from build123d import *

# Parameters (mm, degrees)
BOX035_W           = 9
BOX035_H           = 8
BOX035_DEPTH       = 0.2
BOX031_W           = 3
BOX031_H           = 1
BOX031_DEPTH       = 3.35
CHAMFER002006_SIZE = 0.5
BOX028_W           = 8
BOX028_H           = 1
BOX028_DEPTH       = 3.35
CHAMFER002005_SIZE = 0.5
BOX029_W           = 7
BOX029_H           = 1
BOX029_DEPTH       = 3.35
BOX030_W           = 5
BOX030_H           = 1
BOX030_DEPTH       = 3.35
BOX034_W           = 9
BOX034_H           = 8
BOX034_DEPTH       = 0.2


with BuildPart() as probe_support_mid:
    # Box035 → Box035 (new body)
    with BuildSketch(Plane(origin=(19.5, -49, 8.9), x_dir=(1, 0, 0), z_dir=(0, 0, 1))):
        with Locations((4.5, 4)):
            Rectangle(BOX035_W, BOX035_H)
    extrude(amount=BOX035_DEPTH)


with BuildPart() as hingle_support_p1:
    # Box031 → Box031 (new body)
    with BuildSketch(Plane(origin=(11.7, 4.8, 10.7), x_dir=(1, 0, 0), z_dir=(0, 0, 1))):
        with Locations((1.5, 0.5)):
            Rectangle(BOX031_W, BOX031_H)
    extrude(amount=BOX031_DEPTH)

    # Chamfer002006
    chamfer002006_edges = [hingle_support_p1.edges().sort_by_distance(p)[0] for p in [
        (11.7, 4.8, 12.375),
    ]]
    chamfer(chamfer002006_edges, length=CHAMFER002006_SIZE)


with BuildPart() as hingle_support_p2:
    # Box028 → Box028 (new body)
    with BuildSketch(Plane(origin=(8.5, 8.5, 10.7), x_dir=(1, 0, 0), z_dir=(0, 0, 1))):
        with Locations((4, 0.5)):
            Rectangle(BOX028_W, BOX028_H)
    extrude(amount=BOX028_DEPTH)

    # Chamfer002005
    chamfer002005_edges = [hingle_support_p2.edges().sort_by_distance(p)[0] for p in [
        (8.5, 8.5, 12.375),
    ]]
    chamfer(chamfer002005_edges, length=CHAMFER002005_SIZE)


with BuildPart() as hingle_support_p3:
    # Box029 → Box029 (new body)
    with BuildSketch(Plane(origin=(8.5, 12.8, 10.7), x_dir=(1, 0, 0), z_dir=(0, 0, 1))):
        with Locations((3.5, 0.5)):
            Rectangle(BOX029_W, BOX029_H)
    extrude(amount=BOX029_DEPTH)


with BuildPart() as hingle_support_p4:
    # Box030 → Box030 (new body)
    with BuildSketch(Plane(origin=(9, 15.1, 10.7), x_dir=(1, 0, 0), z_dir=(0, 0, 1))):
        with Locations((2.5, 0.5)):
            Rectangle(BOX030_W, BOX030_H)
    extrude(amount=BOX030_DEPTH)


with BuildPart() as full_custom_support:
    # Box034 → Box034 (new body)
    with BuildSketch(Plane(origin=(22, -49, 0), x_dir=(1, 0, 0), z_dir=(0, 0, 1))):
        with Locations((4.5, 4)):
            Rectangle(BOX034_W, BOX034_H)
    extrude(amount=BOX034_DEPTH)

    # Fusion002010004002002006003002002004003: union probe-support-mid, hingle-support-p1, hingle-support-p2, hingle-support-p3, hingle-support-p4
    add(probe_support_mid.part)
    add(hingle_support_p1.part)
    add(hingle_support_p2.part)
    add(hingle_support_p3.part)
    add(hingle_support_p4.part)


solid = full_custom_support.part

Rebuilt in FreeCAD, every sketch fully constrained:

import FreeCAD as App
import Part
import Sketcher

V = App.Vector
Q = App.Units.Quantity


def edges_at(feature, points):
    """Names of the edges that pass closest to the given points."""
    edges = feature.Shape.Edges
    near = lambda p: min(range(len(edges)), key=lambda i: edges[i].distToShape(Part.Vertex(*p))[0])
    return sorted({f"Edge{near(p) + 1}" for p in points})

doc = App.newDocument("Part")
params = doc.addObject("Spreadsheet::Sheet", "Params")
for row, (alias, value) in enumerate([
    ("sketch1_width", "9 mm"),
    ("sketch1_height", "8 mm"),
    ("pad1_length", "0.2 mm"),
    ("sketch2_width", "3 mm"),
    ("sketch2_height", "1 mm"),
    ("pad2_length", "3.35 mm"),
    ("chamfer_size", "0.5 mm"),
    ("sketch3_width", "8 mm"),
    ("sketch3_height", "1 mm"),
    ("pad3_length", "3.35 mm"),
    ("chamfer2_size", "0.5 mm"),
    ("sketch4_width", "7 mm"),
    ("sketch4_height", "1 mm"),
    ("pad4_length", "3.35 mm"),
    ("sketch5_width", "5 mm"),
    ("sketch5_height", "1 mm"),
    ("pad5_length", "3.35 mm"),
    ("sketch6_width", "9 mm"),
    ("sketch6_height", "8 mm"),
    ("pad6_length", "0.2 mm"),
], start=1):
    params.set(f"A{row}", alias)
    params.set(f"B{row}", "=" + value)
    params.setAlias(f"B{row}", alias)

body = doc.addObject("PartDesign::Body", "Body")

# Sketch on XY plane
sketch1 = body.newObject("Sketcher::SketchObject", "Sketch")
sketch1.AttachmentSupport = (doc.getObject("XY_Plane"), [""])
sketch1.MapMode = "FlatFace"
sketch1.AttachmentOffset = App.Placement(V(0, 0, 8.9), App.Rotation())
sketch1.addGeometry(Part.LineSegment(V(20, -41, 0), V(20, -49, 0)), False)
sketch1.addGeometry(Part.LineSegment(V(20, -49, 0), V(28, -49, 0)), False)
sketch1.addGeometry(Part.LineSegment(V(28, -49, 0), V(28, -41, 0)), False)
sketch1.addGeometry(Part.LineSegment(V(28, -41, 0), V(20, -41, 0)), False)
sketch1.addConstraint(Sketcher.Constraint("Coincident", 0, 2, 1, 1))
sketch1.addConstraint(Sketcher.Constraint("Coincident", 1, 2, 2, 1))
sketch1.addConstraint(Sketcher.Constraint("Coincident", 2, 2, 3, 1))
sketch1.addConstraint(Sketcher.Constraint("Coincident", 3, 2, 0, 1))
sketch1.addConstraint(Sketcher.Constraint("Vertical", 0))
sketch1.addConstraint(Sketcher.Constraint("Horizontal", 1))
sketch1.addConstraint(Sketcher.Constraint("Vertical", 2))
sketch1.addConstraint(Sketcher.Constraint("Horizontal", 3))
sketch1.addConstraint(Sketcher.Constraint("DistanceX", 1, 1, 1, 2, Q("9 mm")))
sketch1.addConstraint(Sketcher.Constraint("DistanceY", 0, 2, 0, 1, Q("8 mm")))
sketch1.addConstraint(Sketcher.Constraint("DistanceY", 0, 2, -1, 1, Q("49 mm")))
sketch1.addConstraint(Sketcher.Constraint("DistanceX", -1, 1, 0, 2, Q("19.5 mm")))
sketch1.setExpression("Constraints[8]", "Params.sketch1_width")
sketch1.setExpression("Constraints[9]", "Params.sketch1_height")
pad1 = body.newObject("PartDesign::Pad", "Pad")
pad1.Profile = sketch1
pad1.setExpression("Length", "Params.pad1_length")
body2 = doc.addObject("PartDesign::Body", "Body001")

# Sketch on XY plane
sketch2 = body2.newObject("Sketcher::SketchObject", "Sketch001")
sketch2.AttachmentSupport = (doc.getObject("XY_Plane001"), [""])
sketch2.MapMode = "FlatFace"
sketch2.AttachmentOffset = App.Placement(V(0, 0, 10.7), App.Rotation())
sketch2.addGeometry(Part.LineSegment(V(11.7, 5.8, 0), V(11.7, 4.8, 0)), False)
sketch2.addGeometry(Part.LineSegment(V(11.7, 4.8, 0), V(14.7, 4.8, 0)), False)
sketch2.addGeometry(Part.LineSegment(V(14.7, 4.8, 0), V(14.7, 5.8, 0)), False)
sketch2.addGeometry(Part.LineSegment(V(14.7, 5.8, 0), V(11.7, 5.8, 0)), False)
sketch2.addConstraint(Sketcher.Constraint("Coincident", 0, 2, 1, 1))
sketch2.addConstraint(Sketcher.Constraint("Coincident", 1, 2, 2, 1))
sketch2.addConstraint(Sketcher.Constraint("Coincident", 2, 2, 3, 1))
sketch2.addConstraint(Sketcher.Constraint("Coincident", 3, 2, 0, 1))
sketch2.addConstraint(Sketcher.Constraint("Vertical", 0))
sketch2.addConstraint(Sketcher.Constraint("Horizontal", 1))
sketch2.addConstraint(Sketcher.Constraint("Vertical", 2))
sketch2.addConstraint(Sketcher.Constraint("Horizontal", 3))
sketch2.addConstraint(Sketcher.Constraint("DistanceX", 1, 1, 1, 2, Q("3 mm")))
sketch2.addConstraint(Sketcher.Constraint("DistanceY", 0, 2, 0, 1, Q("1 mm")))
sketch2.addConstraint(Sketcher.Constraint("DistanceX", -1, 1, 0, 2, Q("11.7 mm")))
sketch2.addConstraint(Sketcher.Constraint("DistanceY", -1, 1, 0, 2, Q("4.8 mm")))
sketch2.setExpression("Constraints[8]", "Params.sketch2_width")
sketch2.setExpression("Constraints[9]", "Params.sketch2_height")
pad2 = body2.newObject("PartDesign::Pad", "Pad001")
pad2.Profile = sketch2
pad2.setExpression("Length", "Params.pad2_length")
doc.recompute()

chamfer = body2.newObject("PartDesign::Chamfer", "Chamfer")
chamfer.Base = (pad2, edges_at(pad2, [(11.7, 4.8, 12.375)]))
chamfer.setExpression("Size", "Params.chamfer_size")
body3 = doc.addObject("PartDesign::Body", "Body002")

# Sketch on XY plane
sketch3 = body3.newObject("Sketcher::SketchObject", "Sketch002")
sketch3.AttachmentSupport = (doc.getObject("XY_Plane002"), [""])
sketch3.MapMode = "FlatFace"
sketch3.AttachmentOffset = App.Placement(V(0, 0, 10.7), App.Rotation())
sketch3.addGeometry(Part.LineSegment(V(8.5, 9.5, 0), V(8.5, 8.5, 0)), False)
sketch3.addGeometry(Part.LineSegment(V(8.5, 8.5, 0), V(16.5, 8.5, 0)), False)
sketch3.addGeometry(Part.LineSegment(V(16.5, 8.5, 0), V(16.5, 9.5, 0)), False)
sketch3.addGeometry(Part.LineSegment(V(16.5, 9.5, 0), V(8.5, 9.5, 0)), False)
sketch3.addConstraint(Sketcher.Constraint("Coincident", 0, 2, 1, 1))
sketch3.addConstraint(Sketcher.Constraint("Coincident", 1, 2, 2, 1))
sketch3.addConstraint(Sketcher.Constraint("Coincident", 2, 2, 3, 1))
sketch3.addConstraint(Sketcher.Constraint("Coincident", 3, 2, 0, 1))
sketch3.addConstraint(Sketcher.Constraint("Vertical", 0))
sketch3.addConstraint(Sketcher.Constraint("Horizontal", 1))
sketch3.addConstraint(Sketcher.Constraint("Vertical", 2))
sketch3.addConstraint(Sketcher.Constraint("Horizontal", 3))
sketch3.addConstraint(Sketcher.Constraint("DistanceX", 1, 1, 1, 2, Q("8 mm")))
sketch3.addConstraint(Sketcher.Constraint("DistanceY", 0, 2, 0, 1, Q("1 mm")))
sketch3.addConstraint(Sketcher.Constraint("DistanceX", -1, 1, 0, 2, Q("8.5 mm")))
sketch3.addConstraint(Sketcher.Constraint("DistanceY", -1, 1, 0, 2, Q("8.5 mm")))
sketch3.setExpression("Constraints[8]", "Params.sketch3_width")
sketch3.setExpression("Constraints[9]", "Params.sketch3_height")
pad3 = body3.newObject("PartDesign::Pad", "Pad002")
pad3.Profile = sketch3
pad3.setExpression("Length", "Params.pad3_length")
doc.recompute()

chamfer2 = body3.newObject("PartDesign::Chamfer", "Chamfer001")
chamfer2.Base = (pad3, edges_at(pad3, [(8.5, 8.5, 12.375)]))
chamfer2.setExpression("Size", "Params.chamfer2_size")
body4 = doc.addObject("PartDesign::Body", "Body003")

# Sketch on XY plane
sketch4 = body4.newObject("Sketcher::SketchObject", "Sketch003")
sketch4.AttachmentSupport = (doc.getObject("XY_Plane003"), [""])
sketch4.MapMode = "FlatFace"
sketch4.AttachmentOffset = App.Placement(V(0, 0, 10.7), App.Rotation())
sketch4.addGeometry(Part.LineSegment(V(8.5, 13.8, 0), V(8.5, 12.8, 0)), False)
sketch4.addGeometry(Part.LineSegment(V(8.5, 12.8, 0), V(15.5, 12.8, 0)), False)
sketch4.addGeometry(Part.LineSegment(V(15.5, 12.8, 0), V(15.5, 13.8, 0)), False)
sketch4.addGeometry(Part.LineSegment(V(15.5, 13.8, 0), V(8.5, 13.8, 0)), False)
sketch4.addConstraint(Sketcher.Constraint("Coincident", 0, 2, 1, 1))
sketch4.addConstraint(Sketcher.Constraint("Coincident", 1, 2, 2, 1))
sketch4.addConstraint(Sketcher.Constraint("Coincident", 2, 2, 3, 1))
sketch4.addConstraint(Sketcher.Constraint("Coincident", 3, 2, 0, 1))
sketch4.addConstraint(Sketcher.Constraint("Vertical", 0))
sketch4.addConstraint(Sketcher.Constraint("Horizontal", 1))
sketch4.addConstraint(Sketcher.Constraint("Vertical", 2))
sketch4.addConstraint(Sketcher.Constraint("Horizontal", 3))
sketch4.addConstraint(Sketcher.Constraint("DistanceX", 1, 1, 1, 2, Q("7 mm")))
sketch4.addConstraint(Sketcher.Constraint("DistanceY", 0, 2, 0, 1, Q("1 mm")))
sketch4.addConstraint(Sketcher.Constraint("DistanceX", -1, 1, 0, 2, Q("8.5 mm")))
sketch4.addConstraint(Sketcher.Constraint("DistanceY", -1, 1, 0, 2, Q("12.8 mm")))
sketch4.setExpression("Constraints[8]", "Params.sketch4_width")
sketch4.setExpression("Constraints[9]", "Params.sketch4_height")
pad4 = body4.newObject("PartDesign::Pad", "Pad003")
pad4.Profile = sketch4
pad4.setExpression("Length", "Params.pad4_length")
body5 = doc.addObject("PartDesign::Body", "Body004")

# Sketch on XY plane
sketch5 = body5.newObject("Sketcher::SketchObject", "Sketch004")
sketch5.AttachmentSupport = (doc.getObject("XY_Plane004"), [""])
sketch5.MapMode = "FlatFace"
sketch5.AttachmentOffset = App.Placement(V(0, 0, 10.7), App.Rotation())
sketch5.addGeometry(Part.LineSegment(V(9, 16.1, 0), V(9, 15.1, 0)), False)
sketch5.addGeometry(Part.LineSegment(V(9, 15.1, 0), V(14, 15.1, 0)), False)
sketch5.addGeometry(Part.LineSegment(V(14, 15.1, 0), V(14, 16.1, 0)), False)
sketch5.addGeometry(Part.LineSegment(V(14, 16.1, 0), V(9, 16.1, 0)), False)
sketch5.addConstraint(Sketcher.Constraint("Coincident", 0, 2, 1, 1))
sketch5.addConstraint(Sketcher.Constraint("Coincident", 1, 2, 2, 1))
sketch5.addConstraint(Sketcher.Constraint("Coincident", 2, 2, 3, 1))
sketch5.addConstraint(Sketcher.Constraint("Coincident", 3, 2, 0, 1))
sketch5.addConstraint(Sketcher.Constraint("Vertical", 0))
sketch5.addConstraint(Sketcher.Constraint("Horizontal", 1))
sketch5.addConstraint(Sketcher.Constraint("Vertical", 2))
sketch5.addConstraint(Sketcher.Constraint("Horizontal", 3))
sketch5.addConstraint(Sketcher.Constraint("DistanceX", 1, 1, 1, 2, Q("5 mm")))
sketch5.addConstraint(Sketcher.Constraint("DistanceY", 0, 2, 0, 1, Q("1 mm")))
sketch5.addConstraint(Sketcher.Constraint("DistanceX", -1, 1, 0, 2, Q("9 mm")))
sketch5.addConstraint(Sketcher.Constraint("DistanceY", -1, 1, 0, 2, Q("15.1 mm")))
sketch5.setExpression("Constraints[8]", "Params.sketch5_width")
sketch5.setExpression("Constraints[9]", "Params.sketch5_height")
pad5 = body5.newObject("PartDesign::Pad", "Pad004")
pad5.Profile = sketch5
pad5.setExpression("Length", "Params.pad5_length")
body6 = doc.addObject("PartDesign::Body", "Body005")
body6.AllowCompound = True

# Sketch on XY plane
sketch6 = body6.newObject("Sketcher::SketchObject", "Sketch005")
sketch6.AttachmentSupport = (doc.getObject("XY_Plane005"), [""])
sketch6.MapMode = "FlatFace"
sketch6.addGeometry(Part.LineSegment(V(22, -41, 0), V(22, -49, 0)), False)
sketch6.addGeometry(Part.LineSegment(V(22, -49, 0), V(31, -49, 0)), False)
sketch6.addGeometry(Part.LineSegment(V(31, -49, 0), V(31, -41, 0)), False)
sketch6.addGeometry(Part.LineSegment(V(31, -41, 0), V(22, -41, 0)), False)
sketch6.addConstraint(Sketcher.Constraint("Coincident", 0, 2, 1, 1))
sketch6.addConstraint(Sketcher.Constraint("Coincident", 1, 2, 2, 1))
sketch6.addConstraint(Sketcher.Constraint("Coincident", 2, 2, 3, 1))
sketch6.addConstraint(Sketcher.Constraint("Coincident", 3, 2, 0, 1))
sketch6.addConstraint(Sketcher.Constraint("Vertical", 0))
sketch6.addConstraint(Sketcher.Constraint("Horizontal", 1))
sketch6.addConstraint(Sketcher.Constraint("Vertical", 2))
sketch6.addConstraint(Sketcher.Constraint("Horizontal", 3))
sketch6.addConstraint(Sketcher.Constraint("DistanceX", 1, 1, 1, 2, Q("9 mm")))
sketch6.addConstraint(Sketcher.Constraint("DistanceY", 0, 2, 0, 1, Q("8 mm")))
sketch6.addConstraint(Sketcher.Constraint("DistanceX", -1, 1, 0, 2, Q("22 mm")))
sketch6.addConstraint(Sketcher.Constraint("DistanceY", 0, 2, -1, 1, Q("49 mm")))
sketch6.setExpression("Constraints[8]", "Params.sketch6_width")
sketch6.setExpression("Constraints[9]", "Params.sketch6_height")
pad6 = body6.newObject("PartDesign::Pad", "Pad005")
pad6.Profile = sketch6
pad6.setExpression("Length", "Params.pad6_length")
doc.recompute()

boolean = body6.newObject("PartDesign::Boolean", "Boolean")
boolean.Type = "Fuse"
boolean.addObjects([body])
doc.recompute()

boolean2 = body6.newObject("PartDesign::Boolean", "Boolean001")
boolean2.Type = "Fuse"
boolean2.addObjects([body2])
doc.recompute()

boolean3 = body6.newObject("PartDesign::Boolean", "Boolean002")
boolean3.Type = "Fuse"
boolean3.addObjects([body3])
doc.recompute()

boolean4 = body6.newObject("PartDesign::Boolean", "Boolean003")
boolean4.Type = "Fuse"
boolean4.addObjects([body4])
doc.recompute()

boolean5 = body6.newObject("PartDesign::Boolean", "Boolean004")
boolean5.Type = "Fuse"
boolean5.addObjects([body5])

doc.recompute()
